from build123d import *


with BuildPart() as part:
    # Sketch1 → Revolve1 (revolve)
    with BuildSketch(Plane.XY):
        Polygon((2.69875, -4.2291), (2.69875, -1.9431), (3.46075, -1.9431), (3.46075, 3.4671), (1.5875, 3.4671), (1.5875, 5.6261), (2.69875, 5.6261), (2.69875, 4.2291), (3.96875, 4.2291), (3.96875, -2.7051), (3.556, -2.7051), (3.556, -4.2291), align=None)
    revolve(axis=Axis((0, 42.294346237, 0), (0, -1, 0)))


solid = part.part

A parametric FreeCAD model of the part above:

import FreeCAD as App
import Part
import Sketcher
Q = App.Units.Quantity

doc = App.newDocument("Part")
params = doc.addObject("Spreadsheet::Sheet", "Params")
for row, (alias, value) in enumerate([
    ("sketch1_width", "0.05 in"),
    ("sketch1_width2", "0.03 in"),
    ("sketch1_height", "0.09 in"),
    ("sketch1_height2", "0.06 in"),
    ("sketch1_height3", "0.273 in"),
    ("revolution_angle", "360 deg"),
], start=1):
    params.set(f"A{row}", alias)
    params.set(f"B{row}", "=" + value)
    params.setAlias(f"B{row}", alias)

body = doc.addObject("PartDesign::Body", "Body")

# Sketch on XY plane
sketch1 = doc.addObject("Sketcher::SketchObject", "Sketch")
body.addObject(sketch1)
sketch1.AttachmentSupport = (doc.XY_Plane, [""])
sketch1.MapMode = "FlatFace"
sketch1.addGeometry([
    Part.LineSegment(App.Vector(2.7, -1.94, 0), App.Vector(2.7, -4.23, 0)),  # 0
    Part.LineSegment(App.Vector(2.7, -4.23, 0), App.Vector(3.56, -4.23, 0)),  # 1
    Part.LineSegment(App.Vector(3.56, -4.23, 0), App.Vector(3.56, -2.71, 0)),  # 2
    Part.LineSegment(App.Vector(3.56, -2.71, 0), App.Vector(3.97, -2.71, 0)),  # 3
    Part.LineSegment(App.Vector(3.97, -2.71, 0), App.Vector(3.97, 4.23, 0)),  # 4
    Part.LineSegment(App.Vector(3.97, 4.23, 0), App.Vector(2.7, 4.23, 0)),  # 5
    Part.LineSegment(App.Vector(2.7, 4.23, 0), App.Vector(2.7, 5.63, 0)),  # 6
    Part.LineSegment(App.Vector(2.7, 5.63, 0), App.Vector(1.59, 5.63, 0)),  # 7
    Part.LineSegment(App.Vector(1.59, 5.63, 0), App.Vector(1.59, 3.47, 0)),  # 8
    Part.LineSegment(App.Vector(1.59, 3.47, 0), App.Vector(3.46, 3.47, 0)),  # 9
    Part.LineSegment(App.Vector(3.46, 3.47, 0), App.Vector(3.46, -1.94, 0)),  # 10
    Part.LineSegment(App.Vector(3.46, -1.94, 0), App.Vector(2.7, -1.94, 0)),  # 11
], False)
sketch1.addConstraint([
    Sketcher.Constraint("Coincident", 0, 2, 1, 1),
    Sketcher.Constraint("Coincident", 1, 2, 2, 1),
    Sketcher.Constraint("Coincident", 2, 2, 3, 1),
    Sketcher.Constraint("Coincident", 3, 2, 4, 1),
    Sketcher.Constraint("Coincident", 4, 2, 5, 1),
    Sketcher.Constraint("Coincident", 5, 2, 6, 1),
    Sketcher.Constraint("Coincident", 6, 2, 7, 1),
    Sketcher.Constraint("Coincident", 7, 2, 8, 1),
    Sketcher.Constraint("Coincident", 8, 2, 9, 1),
    Sketcher.Constraint("Coincident", 9, 2, 10, 1),
    Sketcher.Constraint("Coincident", 10, 2, 11, 1),
    Sketcher.Constraint("Coincident", 11, 2, 0, 1),
    Sketcher.Constraint("Vertical", 0),
    Sketcher.Constraint("Horizontal", 1),
    Sketcher.Constraint("Vertical", 2),
    Sketcher.Constraint("Horizontal", 3),
    Sketcher.Constraint("Vertical", 4),
    Sketcher.Constraint("Horizontal", 5),
    Sketcher.Constraint("Vertical", 6),
    Sketcher.Constraint("Horizontal", 7),
    Sketcher.Constraint("Vertical", 8),
    Sketcher.Constraint("Horizontal", 9),
    Sketcher.Constraint("Vertical", 10),
    Sketcher.Constraint("Horizontal", 11),
    Sketcher.Constraint("Symmetric", 0, 2, 5, 2, -1),
    Sketcher.Constraint("DistanceX", 5, 2, 5, 1, Q("0.05 in")),
    Sketcher.Constraint("DistanceX", 11, 2, 11, 1, Q("0.03 in")),
    Sketcher.Constraint("DistanceY", 0, 2, 0, 1, Q("0.09 in")),
    Sketcher.Constraint("DistanceY", 2, 1, 2, 2, Q("0.06 in")),
    Sketcher.Constraint("DistanceY", 4, 1, 4, 2, Q("0.273 in")),
    Sketcher.Constraint("DistanceY", 6, 1, 6, 2, Q("0.055 in")),
    Sketcher.Constraint("DistanceY", 8, 2, 8, 1, Q("0.085 in")),
    Sketcher.Constraint("DistanceX", -1, 1, 1, 2, Q("0.14 in")),
    Sketcher.Constraint("DistanceX", -1, 1, 3, 2, Q("0.15625 in")),
    Sketcher.Constraint("DistanceX", -1, 1, 7, 2, Q("0.0625 in")),
])
sketch1.setExpression("Constraints[25]", "Params.sketch1_width")
sketch1.setExpression("Constraints[26]", "Params.sketch1_width2")
sketch1.setExpression("Constraints[27]", "Params.sketch1_height")
sketch1.setExpression("Constraints[28]", "Params.sketch1_height2")
sketch1.setExpression("Constraints[29]", "Params.sketch1_height3")
revolution = doc.addObject("PartDesign::Revolution", "Revolution")
body.addObject(revolution)
revolution.Profile = sketch1
revolution.ReferenceAxis = (sketch1, ["V_Axis"])
revolution.setExpression("Angle", "Params.revolution_angle")

doc.recompute()
